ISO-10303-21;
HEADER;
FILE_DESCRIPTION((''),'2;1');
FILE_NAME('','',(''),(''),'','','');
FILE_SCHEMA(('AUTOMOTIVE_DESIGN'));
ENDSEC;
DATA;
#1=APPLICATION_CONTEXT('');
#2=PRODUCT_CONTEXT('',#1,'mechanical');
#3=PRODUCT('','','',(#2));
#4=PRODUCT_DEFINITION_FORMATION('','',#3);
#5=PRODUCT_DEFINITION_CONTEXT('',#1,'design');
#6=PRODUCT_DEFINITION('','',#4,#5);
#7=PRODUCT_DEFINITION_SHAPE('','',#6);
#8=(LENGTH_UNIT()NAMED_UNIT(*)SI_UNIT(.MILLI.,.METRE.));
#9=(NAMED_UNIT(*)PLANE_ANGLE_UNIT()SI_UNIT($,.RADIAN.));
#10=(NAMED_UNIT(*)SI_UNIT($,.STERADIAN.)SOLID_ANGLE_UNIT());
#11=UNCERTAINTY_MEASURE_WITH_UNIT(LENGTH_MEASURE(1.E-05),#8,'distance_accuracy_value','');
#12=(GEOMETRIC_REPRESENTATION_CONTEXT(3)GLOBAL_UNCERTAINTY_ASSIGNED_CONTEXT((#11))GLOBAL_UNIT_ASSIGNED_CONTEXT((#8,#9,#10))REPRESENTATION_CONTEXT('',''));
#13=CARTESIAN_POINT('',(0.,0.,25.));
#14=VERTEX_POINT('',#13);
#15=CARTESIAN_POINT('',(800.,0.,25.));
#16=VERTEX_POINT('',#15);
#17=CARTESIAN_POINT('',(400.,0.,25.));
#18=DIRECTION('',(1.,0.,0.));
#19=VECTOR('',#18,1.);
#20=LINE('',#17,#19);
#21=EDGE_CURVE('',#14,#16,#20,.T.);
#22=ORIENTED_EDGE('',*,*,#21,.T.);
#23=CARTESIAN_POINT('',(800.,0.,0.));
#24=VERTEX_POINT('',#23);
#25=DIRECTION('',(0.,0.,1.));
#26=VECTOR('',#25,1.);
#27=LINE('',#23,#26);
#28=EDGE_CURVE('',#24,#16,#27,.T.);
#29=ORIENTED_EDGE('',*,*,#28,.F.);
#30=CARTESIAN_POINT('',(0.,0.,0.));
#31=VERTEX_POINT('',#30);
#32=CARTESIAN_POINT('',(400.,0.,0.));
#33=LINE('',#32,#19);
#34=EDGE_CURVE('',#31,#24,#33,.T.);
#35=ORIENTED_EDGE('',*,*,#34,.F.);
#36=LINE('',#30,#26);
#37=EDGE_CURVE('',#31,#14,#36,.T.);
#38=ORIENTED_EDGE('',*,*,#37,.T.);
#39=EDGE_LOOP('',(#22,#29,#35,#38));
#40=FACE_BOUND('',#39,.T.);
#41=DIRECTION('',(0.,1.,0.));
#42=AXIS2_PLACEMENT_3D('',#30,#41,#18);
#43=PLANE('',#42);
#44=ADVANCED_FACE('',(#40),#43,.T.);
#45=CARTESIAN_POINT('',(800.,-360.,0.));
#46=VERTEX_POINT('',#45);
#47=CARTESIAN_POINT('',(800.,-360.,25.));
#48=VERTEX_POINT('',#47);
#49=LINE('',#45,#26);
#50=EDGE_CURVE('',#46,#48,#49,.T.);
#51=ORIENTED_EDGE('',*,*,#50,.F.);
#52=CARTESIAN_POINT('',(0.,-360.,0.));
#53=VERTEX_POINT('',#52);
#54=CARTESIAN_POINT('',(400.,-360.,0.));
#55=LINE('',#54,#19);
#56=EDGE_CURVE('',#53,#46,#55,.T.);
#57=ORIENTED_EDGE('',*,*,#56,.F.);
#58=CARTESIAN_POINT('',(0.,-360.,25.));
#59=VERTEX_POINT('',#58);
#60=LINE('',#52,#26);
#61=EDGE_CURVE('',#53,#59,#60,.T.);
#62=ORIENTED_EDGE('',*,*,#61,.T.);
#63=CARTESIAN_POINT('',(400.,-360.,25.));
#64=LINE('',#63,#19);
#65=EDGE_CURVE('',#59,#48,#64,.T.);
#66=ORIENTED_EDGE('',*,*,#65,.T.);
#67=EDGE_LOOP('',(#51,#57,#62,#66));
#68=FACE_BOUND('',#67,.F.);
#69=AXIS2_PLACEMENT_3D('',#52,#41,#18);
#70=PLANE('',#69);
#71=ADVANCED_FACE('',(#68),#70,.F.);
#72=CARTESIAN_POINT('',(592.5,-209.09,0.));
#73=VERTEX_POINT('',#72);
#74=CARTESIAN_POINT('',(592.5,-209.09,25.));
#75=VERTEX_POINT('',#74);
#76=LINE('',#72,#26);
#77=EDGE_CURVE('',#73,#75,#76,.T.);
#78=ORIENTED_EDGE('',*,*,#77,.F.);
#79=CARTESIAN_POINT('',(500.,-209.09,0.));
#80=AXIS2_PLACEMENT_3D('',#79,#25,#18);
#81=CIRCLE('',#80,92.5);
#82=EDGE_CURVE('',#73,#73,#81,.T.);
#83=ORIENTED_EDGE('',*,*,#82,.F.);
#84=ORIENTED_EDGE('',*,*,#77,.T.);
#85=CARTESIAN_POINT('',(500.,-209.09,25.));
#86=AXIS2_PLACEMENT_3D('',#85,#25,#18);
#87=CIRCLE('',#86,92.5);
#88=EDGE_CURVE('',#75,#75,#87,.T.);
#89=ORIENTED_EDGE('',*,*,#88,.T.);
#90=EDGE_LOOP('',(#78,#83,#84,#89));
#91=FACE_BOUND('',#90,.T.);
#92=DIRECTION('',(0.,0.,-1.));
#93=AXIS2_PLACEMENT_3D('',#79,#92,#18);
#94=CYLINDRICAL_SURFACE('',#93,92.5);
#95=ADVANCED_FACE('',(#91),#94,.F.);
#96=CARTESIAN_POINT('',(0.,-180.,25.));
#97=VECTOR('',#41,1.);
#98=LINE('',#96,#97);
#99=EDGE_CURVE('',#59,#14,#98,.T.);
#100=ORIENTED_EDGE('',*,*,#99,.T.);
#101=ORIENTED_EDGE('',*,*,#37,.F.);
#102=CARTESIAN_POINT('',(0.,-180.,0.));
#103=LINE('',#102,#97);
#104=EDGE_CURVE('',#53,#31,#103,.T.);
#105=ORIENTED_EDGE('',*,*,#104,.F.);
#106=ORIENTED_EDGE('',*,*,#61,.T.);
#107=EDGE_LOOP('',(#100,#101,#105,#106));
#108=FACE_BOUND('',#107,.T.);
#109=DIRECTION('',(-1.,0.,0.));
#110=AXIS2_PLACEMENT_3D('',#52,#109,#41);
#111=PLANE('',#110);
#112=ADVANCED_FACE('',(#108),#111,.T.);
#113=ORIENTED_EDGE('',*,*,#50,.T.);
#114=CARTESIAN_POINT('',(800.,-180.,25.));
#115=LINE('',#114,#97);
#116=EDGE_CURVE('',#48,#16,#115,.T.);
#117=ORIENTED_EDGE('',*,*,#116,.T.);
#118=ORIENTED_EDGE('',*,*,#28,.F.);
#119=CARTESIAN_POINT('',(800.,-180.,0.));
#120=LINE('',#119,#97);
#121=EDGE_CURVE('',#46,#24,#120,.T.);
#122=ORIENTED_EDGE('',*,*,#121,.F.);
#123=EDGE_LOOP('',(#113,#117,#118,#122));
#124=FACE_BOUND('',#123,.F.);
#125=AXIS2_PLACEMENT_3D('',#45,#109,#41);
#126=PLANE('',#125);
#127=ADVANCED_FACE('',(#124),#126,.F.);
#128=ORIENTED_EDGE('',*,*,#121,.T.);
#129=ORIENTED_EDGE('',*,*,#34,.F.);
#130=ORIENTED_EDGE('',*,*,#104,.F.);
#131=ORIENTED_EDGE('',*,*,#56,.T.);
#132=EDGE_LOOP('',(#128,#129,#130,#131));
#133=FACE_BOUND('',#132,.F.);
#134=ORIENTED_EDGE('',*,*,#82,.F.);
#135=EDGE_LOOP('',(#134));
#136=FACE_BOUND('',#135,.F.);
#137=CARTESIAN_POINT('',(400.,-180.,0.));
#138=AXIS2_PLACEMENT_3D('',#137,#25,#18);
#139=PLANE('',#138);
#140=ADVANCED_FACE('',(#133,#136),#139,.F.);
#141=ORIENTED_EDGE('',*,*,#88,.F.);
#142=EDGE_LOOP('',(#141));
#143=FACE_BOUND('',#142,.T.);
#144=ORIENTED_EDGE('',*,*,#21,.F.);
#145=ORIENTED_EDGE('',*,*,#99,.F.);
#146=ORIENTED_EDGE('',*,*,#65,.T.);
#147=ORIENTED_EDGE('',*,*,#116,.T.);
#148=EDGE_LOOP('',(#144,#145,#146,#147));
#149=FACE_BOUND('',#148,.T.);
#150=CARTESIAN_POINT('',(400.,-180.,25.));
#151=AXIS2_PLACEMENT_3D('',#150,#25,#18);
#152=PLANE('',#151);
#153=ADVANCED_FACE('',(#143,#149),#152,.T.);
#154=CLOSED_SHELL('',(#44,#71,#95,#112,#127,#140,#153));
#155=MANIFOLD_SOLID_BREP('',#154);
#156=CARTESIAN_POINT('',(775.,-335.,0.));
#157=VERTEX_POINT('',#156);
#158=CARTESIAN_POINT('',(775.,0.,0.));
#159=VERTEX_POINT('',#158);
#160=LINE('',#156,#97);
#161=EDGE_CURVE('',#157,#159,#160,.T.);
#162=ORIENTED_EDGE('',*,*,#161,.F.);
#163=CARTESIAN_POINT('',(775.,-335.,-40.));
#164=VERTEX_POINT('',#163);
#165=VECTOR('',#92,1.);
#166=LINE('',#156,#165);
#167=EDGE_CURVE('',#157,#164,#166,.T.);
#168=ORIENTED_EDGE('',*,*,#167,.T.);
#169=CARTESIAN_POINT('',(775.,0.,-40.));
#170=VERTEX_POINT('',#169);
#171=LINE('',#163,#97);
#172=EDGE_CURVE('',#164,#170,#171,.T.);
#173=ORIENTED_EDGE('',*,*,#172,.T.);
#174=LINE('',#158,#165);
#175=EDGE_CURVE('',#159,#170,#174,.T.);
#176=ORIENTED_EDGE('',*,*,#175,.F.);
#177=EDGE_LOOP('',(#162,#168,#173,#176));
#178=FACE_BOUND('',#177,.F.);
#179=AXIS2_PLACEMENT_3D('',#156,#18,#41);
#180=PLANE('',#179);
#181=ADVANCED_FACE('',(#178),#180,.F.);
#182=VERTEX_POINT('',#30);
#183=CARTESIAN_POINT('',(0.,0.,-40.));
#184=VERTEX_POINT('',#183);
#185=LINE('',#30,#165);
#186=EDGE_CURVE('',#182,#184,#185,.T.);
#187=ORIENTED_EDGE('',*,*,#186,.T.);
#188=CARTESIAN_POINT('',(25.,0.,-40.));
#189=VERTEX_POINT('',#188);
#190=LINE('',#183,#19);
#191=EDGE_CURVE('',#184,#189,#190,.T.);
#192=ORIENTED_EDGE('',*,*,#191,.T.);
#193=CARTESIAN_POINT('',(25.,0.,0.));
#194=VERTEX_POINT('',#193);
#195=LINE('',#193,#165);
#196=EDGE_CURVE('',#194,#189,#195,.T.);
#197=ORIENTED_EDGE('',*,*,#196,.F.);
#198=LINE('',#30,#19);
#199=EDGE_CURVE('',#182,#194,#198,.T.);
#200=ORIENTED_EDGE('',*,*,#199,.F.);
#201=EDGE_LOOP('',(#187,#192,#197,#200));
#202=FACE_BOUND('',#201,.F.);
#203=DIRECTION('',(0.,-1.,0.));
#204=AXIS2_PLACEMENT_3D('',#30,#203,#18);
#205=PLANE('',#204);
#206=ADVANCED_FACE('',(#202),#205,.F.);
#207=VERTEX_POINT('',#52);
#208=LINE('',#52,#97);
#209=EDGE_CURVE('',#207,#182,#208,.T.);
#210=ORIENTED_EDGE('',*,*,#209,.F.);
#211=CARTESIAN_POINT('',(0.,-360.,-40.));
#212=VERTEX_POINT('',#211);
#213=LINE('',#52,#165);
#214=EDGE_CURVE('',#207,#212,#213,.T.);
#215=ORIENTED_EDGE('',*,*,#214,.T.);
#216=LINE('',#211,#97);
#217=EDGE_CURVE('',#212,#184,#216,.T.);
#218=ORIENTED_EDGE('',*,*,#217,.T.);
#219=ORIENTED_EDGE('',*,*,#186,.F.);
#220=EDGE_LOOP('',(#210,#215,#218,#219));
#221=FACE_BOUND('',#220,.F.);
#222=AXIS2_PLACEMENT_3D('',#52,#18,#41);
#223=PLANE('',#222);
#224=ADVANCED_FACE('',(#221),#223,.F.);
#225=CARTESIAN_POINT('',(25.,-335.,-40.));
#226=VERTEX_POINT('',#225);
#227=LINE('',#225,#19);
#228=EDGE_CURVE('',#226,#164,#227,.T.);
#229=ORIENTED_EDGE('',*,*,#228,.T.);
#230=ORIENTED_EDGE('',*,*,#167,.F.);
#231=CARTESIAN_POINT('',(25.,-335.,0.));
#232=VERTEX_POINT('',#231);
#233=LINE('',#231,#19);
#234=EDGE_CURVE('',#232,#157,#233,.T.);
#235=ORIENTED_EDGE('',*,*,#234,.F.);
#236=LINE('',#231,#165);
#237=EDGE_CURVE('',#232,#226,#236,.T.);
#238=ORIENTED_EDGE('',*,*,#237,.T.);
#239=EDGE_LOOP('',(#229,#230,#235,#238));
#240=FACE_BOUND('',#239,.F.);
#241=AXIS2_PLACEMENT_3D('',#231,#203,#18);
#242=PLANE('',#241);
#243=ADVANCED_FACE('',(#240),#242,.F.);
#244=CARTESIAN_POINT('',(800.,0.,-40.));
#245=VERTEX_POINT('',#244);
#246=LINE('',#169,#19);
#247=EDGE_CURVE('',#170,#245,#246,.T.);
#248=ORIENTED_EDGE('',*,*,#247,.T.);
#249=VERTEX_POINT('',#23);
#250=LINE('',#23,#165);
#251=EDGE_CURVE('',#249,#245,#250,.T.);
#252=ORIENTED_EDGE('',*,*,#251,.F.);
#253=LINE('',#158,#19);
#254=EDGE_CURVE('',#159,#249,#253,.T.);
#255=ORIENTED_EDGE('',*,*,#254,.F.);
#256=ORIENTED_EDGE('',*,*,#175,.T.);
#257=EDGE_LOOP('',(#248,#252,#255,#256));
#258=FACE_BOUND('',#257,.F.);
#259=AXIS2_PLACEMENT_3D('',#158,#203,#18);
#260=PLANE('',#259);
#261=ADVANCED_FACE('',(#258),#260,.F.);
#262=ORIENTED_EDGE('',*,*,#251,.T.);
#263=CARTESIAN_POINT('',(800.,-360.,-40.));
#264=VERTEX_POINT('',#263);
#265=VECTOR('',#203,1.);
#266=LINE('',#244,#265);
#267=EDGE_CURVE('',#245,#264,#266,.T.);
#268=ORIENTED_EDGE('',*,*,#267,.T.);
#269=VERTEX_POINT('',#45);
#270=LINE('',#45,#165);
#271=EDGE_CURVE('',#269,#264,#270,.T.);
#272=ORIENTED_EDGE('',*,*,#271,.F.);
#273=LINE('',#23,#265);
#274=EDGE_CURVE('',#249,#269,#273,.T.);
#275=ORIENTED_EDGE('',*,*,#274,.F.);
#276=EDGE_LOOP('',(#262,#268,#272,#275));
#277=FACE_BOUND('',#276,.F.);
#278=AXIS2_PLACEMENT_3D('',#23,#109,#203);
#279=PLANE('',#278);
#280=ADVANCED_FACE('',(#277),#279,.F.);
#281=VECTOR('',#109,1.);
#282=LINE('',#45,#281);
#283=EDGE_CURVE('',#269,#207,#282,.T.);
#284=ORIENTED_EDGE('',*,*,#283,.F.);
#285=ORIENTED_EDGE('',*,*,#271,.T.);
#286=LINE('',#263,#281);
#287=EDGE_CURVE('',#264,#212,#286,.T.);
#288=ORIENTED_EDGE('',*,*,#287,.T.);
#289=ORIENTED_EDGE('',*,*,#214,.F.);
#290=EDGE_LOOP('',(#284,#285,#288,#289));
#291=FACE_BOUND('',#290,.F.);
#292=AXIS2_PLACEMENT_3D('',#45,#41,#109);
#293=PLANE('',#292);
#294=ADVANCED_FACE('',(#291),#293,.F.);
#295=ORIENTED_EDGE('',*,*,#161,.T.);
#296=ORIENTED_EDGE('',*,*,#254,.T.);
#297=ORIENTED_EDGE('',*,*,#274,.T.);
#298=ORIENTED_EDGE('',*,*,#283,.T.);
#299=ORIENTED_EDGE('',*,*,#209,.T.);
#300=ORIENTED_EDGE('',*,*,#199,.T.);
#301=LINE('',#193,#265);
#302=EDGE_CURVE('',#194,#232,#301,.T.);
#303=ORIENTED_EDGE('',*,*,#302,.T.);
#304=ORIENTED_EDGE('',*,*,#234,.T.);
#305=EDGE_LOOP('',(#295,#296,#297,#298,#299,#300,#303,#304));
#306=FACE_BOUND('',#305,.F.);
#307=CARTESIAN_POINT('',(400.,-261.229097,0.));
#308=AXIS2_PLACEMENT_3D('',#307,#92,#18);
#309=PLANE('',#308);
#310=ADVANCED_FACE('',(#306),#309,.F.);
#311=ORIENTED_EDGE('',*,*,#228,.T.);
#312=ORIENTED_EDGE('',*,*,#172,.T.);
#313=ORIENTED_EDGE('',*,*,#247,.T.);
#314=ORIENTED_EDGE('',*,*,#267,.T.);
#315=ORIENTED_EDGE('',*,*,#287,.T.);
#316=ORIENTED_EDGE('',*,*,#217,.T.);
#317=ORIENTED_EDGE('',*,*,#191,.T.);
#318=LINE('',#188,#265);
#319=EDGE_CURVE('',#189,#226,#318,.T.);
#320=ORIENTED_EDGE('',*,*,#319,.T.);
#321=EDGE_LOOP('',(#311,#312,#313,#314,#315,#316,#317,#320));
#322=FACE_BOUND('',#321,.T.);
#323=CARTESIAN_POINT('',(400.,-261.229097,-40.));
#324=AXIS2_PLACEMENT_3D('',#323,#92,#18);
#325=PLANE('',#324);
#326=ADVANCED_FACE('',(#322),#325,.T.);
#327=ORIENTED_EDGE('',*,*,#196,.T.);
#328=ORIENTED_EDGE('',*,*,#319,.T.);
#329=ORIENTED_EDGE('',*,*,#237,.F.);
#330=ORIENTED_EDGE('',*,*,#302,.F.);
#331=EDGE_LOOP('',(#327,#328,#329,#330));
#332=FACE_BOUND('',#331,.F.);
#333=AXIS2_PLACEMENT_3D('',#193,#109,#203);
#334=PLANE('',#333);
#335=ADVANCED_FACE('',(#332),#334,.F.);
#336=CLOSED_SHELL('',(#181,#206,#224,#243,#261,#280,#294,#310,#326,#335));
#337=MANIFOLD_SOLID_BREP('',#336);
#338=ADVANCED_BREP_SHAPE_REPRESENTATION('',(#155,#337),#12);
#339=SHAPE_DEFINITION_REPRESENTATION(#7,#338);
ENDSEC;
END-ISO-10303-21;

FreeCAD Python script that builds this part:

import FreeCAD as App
import Part
import Sketcher


def add_polygon(sketch, points):
    """Adds a closed chain of lines whose ends are joined by coincident constraints."""
    first, n = sketch.GeometryCount, len(points)
    for a, b in zip(points, points[1:] + points[:1]):
        sketch.addGeometry(Part.LineSegment(App.Vector(*a, 0), App.Vector(*b, 0)), False)
    for i in range(n):
        sketch.addConstraint(Sketcher.Constraint("Coincident", first + i, 2, first + (i + 1) % n, 1))

doc = App.newDocument("Part")
body = doc.addObject("PartDesign::Body", "Body")

sketch1 = doc.addObject("Sketcher::SketchObject", "Sketch")
body.addObject(sketch1)
sketch1.AttachmentSupport = (doc.XY_Plane, [""])
sketch1.MapMode = "FlatFace"
add_polygon(sketch1, [(0, 0), (0, -360), (800, -360), (800, 0)])
sketch1.addGeometry(Part.Circle(App.Vector(500, -209, 0), App.Vector(0, 0, 1), 92), False)
sketch1.addConstraint(Sketcher.Constraint("Vertical", 0))
sketch1.addConstraint(Sketcher.Constraint("Horizontal", 1))
sketch1.addConstraint(Sketcher.Constraint("Vertical", 2))
sketch1.addConstraint(Sketcher.Constraint("Horizontal", 3))
sketch1.addConstraint(Sketcher.Constraint("Coincident", 3, 2, -1, 1))
sketch1.addConstraint(Sketcher.Constraint("Diameter", 4, 185.0))
sketch1.addConstraint(Sketcher.Constraint("DistanceX", 1, 1, 1, 2, 800.0))
sketch1.addConstraint(Sketcher.Constraint("DistanceY", 0, 2, 0, 1, 360.0))
sketch1.addConstraint(Sketcher.Constraint("DistanceX", -1, 1, 4, 3, 500.0))
sketch1.addConstraint(Sketcher.Constraint("DistanceY", 4, 3, -1, 1, 209.09))
pad1 = doc.addObject("PartDesign::Pad", "Pad")
body.addObject(pad1)
pad1.Profile = sketch1
pad1.Length = 25
body2 = doc.addObject("PartDesign::Body", "Body001")

sketch2 = doc.addObject("Sketcher::SketchObject", "Sketch001")
body2.addObject(sketch2)
sketch2.AttachmentSupport = (doc.getObject("XY_Plane001"), [""])
sketch2.MapMode = "FlatFace"
add_polygon(sketch2, [(0, 0), (25, 0), (25, -335), (775, -335), (775, 0), (800, 0), (800, -360), (0, -360)])
sketch2.addConstraint(Sketcher.Constraint("Horizontal", 0))
sketch2.addConstraint(Sketcher.Constraint("Vertical", 1))
sketch2.addConstraint(Sketcher.Constraint("Horizontal", 2))
sketch2.addConstraint(Sketcher.Constraint("Vertical", 3))
sketch2.addConstraint(Sketcher.Constraint("Horizontal", 4))
sketch2.addConstraint(Sketcher.Constraint("Vertical", 5))
sketch2.addConstraint(Sketcher.Constraint("Horizontal", 6))
sketch2.addConstraint(Sketcher.Constraint("Vertical", 7))
sketch2.addConstraint(Sketcher.Constraint("Coincident", 7, 2, -1, 1))
sketch2.addConstraint(Sketcher.Constraint("PointOnObject", 3, 2, -1))
sketch2.addConstraint(Sketcher.Constraint("Equal", 0, 4))
sketch2.addConstraint(Sketcher.Constraint("DistanceX", 0, 1, 0, 2, 25.0))
sketch2.addConstraint(Sketcher.Constraint("DistanceX", 2, 1, 2, 2, 750.0))
sketch2.addConstraint(Sketcher.Constraint("DistanceY", 1, 2, 1, 1, 335.0))
sketch2.addConstraint(Sketcher.Constraint("DistanceY", 5, 2, 5, 1, 360.0))
pad2 = doc.addObject("PartDesign::Pad", "Pad001")
body2.addObject(pad2)
pad2.Profile = sketch2
pad2.Length = 40
pad2.Reversed = True

doc.recompute()
